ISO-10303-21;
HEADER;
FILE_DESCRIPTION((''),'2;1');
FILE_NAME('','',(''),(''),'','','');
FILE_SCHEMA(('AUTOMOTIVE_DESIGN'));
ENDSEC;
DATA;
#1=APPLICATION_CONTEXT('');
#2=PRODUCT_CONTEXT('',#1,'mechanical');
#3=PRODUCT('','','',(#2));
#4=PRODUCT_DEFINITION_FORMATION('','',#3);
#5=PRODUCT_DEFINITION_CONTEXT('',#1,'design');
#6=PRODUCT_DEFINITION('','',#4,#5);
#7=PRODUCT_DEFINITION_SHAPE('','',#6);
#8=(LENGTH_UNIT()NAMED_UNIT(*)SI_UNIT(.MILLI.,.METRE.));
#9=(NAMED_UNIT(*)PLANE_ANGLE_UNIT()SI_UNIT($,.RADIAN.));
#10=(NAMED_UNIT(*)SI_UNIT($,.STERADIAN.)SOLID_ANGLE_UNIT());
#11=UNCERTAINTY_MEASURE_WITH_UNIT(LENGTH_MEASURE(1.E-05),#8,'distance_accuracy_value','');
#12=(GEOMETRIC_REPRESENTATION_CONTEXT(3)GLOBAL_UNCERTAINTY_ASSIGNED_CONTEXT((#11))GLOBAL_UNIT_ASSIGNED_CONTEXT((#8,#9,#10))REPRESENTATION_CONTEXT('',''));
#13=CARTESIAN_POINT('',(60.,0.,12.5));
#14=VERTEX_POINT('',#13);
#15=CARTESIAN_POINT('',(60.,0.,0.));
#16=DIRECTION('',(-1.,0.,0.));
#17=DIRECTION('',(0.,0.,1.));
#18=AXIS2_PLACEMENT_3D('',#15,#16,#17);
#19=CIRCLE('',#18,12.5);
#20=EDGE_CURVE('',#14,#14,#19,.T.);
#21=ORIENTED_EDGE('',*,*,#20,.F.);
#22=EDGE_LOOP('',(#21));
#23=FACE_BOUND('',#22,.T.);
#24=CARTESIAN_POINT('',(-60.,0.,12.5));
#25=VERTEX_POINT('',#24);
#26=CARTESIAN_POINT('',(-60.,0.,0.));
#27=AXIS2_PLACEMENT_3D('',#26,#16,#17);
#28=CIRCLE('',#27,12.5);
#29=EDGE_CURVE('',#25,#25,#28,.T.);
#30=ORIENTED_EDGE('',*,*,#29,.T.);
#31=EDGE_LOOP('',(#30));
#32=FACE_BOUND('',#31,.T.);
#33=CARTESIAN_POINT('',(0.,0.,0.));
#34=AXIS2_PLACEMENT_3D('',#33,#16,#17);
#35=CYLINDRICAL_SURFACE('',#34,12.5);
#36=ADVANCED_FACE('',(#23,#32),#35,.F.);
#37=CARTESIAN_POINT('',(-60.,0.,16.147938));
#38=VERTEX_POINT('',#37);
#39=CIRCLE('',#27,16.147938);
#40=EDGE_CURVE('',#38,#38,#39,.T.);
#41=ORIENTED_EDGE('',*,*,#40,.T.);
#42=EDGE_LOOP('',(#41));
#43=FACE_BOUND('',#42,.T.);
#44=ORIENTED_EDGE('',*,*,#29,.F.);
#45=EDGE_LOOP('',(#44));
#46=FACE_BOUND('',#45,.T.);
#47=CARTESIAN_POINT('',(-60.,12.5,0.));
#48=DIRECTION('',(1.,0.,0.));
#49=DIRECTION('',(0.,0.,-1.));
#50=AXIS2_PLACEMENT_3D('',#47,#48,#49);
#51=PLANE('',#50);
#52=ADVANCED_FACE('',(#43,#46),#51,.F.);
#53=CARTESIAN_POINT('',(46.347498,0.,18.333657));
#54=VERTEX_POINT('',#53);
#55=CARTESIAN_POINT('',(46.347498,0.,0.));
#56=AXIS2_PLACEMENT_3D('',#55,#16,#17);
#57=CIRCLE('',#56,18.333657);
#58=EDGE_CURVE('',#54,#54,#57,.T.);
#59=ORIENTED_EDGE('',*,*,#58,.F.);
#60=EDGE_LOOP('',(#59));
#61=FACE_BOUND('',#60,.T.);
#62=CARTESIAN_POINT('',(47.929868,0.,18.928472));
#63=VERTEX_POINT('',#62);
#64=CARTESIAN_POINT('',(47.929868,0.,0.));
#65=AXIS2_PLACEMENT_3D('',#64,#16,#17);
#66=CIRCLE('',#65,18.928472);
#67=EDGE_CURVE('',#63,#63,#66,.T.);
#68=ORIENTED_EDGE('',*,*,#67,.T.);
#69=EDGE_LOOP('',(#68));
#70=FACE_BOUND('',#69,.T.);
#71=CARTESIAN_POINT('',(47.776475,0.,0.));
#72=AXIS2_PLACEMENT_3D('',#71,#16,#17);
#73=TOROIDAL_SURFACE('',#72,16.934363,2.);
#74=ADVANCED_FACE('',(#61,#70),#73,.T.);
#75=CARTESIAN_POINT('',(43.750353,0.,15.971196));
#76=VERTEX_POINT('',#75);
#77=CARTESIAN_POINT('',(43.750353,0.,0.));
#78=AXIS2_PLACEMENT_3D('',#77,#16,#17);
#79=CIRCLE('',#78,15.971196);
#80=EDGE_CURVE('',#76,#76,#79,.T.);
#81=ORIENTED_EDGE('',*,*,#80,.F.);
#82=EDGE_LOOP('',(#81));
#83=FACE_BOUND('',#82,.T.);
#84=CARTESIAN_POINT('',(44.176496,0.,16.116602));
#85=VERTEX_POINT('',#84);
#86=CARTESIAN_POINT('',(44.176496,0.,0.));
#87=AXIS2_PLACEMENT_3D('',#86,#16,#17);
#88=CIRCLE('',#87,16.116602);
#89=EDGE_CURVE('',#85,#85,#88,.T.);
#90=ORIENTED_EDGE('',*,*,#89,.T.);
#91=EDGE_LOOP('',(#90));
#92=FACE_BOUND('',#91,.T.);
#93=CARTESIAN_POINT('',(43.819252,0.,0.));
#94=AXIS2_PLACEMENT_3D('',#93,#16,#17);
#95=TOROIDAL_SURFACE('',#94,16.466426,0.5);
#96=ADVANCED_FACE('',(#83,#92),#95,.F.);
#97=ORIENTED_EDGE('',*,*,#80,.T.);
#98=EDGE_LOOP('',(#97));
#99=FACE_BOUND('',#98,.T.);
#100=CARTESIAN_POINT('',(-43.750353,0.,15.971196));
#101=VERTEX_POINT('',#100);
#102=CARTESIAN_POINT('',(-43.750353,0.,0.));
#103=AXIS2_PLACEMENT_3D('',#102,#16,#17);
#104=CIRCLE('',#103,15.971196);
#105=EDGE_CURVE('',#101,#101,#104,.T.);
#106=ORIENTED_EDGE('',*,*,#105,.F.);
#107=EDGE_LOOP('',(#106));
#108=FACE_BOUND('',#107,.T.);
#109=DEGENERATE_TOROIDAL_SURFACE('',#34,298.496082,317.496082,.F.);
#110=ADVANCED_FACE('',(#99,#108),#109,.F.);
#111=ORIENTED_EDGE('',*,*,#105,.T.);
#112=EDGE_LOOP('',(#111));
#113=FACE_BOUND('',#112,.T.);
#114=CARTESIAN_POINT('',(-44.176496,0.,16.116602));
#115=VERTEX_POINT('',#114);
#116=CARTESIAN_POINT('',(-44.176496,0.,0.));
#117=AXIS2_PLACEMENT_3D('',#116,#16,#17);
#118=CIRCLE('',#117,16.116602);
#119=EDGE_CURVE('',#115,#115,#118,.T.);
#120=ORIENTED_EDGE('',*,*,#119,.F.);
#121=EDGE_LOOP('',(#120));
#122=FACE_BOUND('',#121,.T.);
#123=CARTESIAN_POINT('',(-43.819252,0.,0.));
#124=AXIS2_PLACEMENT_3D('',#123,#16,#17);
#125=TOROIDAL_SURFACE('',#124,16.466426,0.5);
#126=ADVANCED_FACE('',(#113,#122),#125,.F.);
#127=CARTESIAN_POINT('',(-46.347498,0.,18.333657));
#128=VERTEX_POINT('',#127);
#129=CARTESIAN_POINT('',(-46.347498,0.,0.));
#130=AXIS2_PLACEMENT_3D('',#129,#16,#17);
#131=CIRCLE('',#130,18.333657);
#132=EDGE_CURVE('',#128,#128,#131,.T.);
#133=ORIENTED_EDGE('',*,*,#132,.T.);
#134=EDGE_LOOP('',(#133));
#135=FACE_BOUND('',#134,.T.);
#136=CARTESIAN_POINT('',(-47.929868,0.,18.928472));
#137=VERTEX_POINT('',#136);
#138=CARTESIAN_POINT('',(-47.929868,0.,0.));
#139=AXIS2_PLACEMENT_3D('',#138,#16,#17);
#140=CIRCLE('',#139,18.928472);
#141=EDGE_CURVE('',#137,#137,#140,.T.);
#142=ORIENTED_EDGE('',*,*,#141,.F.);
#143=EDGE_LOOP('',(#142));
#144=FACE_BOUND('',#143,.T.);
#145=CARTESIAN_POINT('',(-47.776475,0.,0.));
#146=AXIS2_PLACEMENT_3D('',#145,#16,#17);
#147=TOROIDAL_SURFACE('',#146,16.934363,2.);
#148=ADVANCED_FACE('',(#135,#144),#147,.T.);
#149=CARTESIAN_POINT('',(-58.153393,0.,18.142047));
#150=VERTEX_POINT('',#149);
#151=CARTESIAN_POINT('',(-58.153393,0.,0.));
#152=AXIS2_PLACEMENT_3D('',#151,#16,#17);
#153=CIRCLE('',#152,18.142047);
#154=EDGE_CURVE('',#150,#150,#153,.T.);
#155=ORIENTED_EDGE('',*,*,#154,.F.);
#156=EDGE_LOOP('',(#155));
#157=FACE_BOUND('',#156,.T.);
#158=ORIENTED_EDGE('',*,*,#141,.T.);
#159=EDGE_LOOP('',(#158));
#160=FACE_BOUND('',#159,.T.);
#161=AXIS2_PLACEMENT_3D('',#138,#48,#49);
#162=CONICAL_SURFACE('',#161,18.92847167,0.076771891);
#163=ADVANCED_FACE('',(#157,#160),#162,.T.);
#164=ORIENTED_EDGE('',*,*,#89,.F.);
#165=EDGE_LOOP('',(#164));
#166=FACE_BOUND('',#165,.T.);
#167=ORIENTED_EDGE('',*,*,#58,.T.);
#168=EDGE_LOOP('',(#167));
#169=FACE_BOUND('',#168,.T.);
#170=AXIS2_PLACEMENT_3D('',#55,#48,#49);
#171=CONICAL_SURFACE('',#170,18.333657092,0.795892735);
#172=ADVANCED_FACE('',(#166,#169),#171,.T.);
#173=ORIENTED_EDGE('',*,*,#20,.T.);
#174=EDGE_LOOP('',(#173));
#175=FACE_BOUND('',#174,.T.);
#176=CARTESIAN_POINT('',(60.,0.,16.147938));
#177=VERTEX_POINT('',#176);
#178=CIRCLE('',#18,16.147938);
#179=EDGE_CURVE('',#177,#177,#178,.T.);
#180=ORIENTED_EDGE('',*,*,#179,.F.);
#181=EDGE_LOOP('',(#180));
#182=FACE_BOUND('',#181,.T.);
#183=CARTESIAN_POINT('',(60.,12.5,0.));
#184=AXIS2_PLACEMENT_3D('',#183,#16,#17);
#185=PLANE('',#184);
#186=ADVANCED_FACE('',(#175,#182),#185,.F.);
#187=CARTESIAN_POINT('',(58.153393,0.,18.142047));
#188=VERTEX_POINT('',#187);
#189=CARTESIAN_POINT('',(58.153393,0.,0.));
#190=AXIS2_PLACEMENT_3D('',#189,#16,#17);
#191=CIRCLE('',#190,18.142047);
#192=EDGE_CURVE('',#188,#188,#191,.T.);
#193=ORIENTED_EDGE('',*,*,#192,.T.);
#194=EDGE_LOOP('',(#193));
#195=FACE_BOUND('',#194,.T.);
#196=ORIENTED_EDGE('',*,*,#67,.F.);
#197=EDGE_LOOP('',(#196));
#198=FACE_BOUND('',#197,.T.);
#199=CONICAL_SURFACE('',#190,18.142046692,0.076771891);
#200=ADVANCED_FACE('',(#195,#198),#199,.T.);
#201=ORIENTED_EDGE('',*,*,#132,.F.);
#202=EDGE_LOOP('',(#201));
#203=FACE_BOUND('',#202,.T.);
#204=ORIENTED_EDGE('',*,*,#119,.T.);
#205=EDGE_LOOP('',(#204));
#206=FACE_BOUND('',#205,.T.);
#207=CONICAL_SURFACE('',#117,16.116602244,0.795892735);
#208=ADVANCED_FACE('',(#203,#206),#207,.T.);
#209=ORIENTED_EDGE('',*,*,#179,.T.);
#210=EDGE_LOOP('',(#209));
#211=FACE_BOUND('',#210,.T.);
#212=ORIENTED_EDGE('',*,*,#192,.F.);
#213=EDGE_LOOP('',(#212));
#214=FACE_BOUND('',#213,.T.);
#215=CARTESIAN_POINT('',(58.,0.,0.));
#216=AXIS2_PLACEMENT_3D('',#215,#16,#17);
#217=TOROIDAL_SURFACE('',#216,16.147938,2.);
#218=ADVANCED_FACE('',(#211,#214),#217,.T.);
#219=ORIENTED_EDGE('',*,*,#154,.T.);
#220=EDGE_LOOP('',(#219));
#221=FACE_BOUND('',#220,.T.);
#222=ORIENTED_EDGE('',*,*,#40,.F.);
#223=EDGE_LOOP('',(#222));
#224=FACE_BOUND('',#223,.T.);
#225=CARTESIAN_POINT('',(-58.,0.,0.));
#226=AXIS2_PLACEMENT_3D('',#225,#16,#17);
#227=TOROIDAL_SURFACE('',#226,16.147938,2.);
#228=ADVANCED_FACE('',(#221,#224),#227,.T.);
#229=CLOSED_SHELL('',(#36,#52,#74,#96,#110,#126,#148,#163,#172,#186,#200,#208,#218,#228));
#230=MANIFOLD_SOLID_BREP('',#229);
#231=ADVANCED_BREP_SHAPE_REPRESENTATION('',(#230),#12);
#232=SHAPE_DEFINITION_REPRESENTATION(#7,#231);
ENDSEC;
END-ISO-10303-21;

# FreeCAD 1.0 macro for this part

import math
import FreeCAD as App
import Part
import Sketcher
from FreeCAD import Vector

doc = App.newDocument("Part")
body = doc.addObject("PartDesign::Body", "Body")

sketch1 = body.newObject("Sketcher::SketchObject", "Sketch")
sketch1.AttachmentSupport = (doc.getObject("XY_Plane"), [""])
sketch1.MapMode = "FlatFace"
sketch1.addGeometry([
    Part.LineSegment(Vector(-60, 12.5, 0), Vector(60, 12.5, 0)),
    Part.LineSegment(Vector(60, 12.5, 0), Vector(60, 16.15, 0)),
    Part.ArcOfCircle(Part.Circle(Vector(58, 16.15, 0), Vector(0, 0, 1), 2), math.radians(0), math.radians(86)),
    Part.LineSegment(Vector(58.15, 18.14, 0), Vector(47.93, 18.93, 0)),
    Part.ArcOfCircle(Part.Circle(Vector(47.78, 16.93, 0), Vector(0, 0, 1), 2), math.radians(86), math.radians(136)),
    Part.LineSegment(Vector(46.35, 18.33, 0), Vector(44.18, 16.12, 0)),
    Part.ArcOfCircle(Part.Circle(Vector(43.82, 16.47, 0), Vector(0, 0, 1), 0.5), math.radians(-98), math.radians(-44)),
    Part.ArcOfCircle(Part.Circle(Vector(0, -298.5, 0), Vector(0, 0, 1), 317.5), math.radians(82.08), math.radians(97.92)),
    Part.ArcOfCircle(Part.Circle(Vector(-43.82, 16.47, 0), Vector(0, 0, 1), 0.5), math.radians(-136), math.radians(-82)),
    Part.LineSegment(Vector(-44.18, 16.12, 0), Vector(-46.35, 18.33, 0)),
    Part.ArcOfCircle(Part.Circle(Vector(-47.78, 16.93, 0), Vector(0, 0, 1), 2), math.radians(44), math.radians(94)),
    Part.LineSegment(Vector(-47.93, 18.93, 0), Vector(-58.15, 18.14, 0)),
    Part.ArcOfCircle(Part.Circle(Vector(-58, 16.15, 0), Vector(0, 0, 1), 2), math.radians(94), math.radians(180)),
    Part.LineSegment(Vector(-60, 16.15, 0), Vector(-60, 12.5, 0)),
], False)
sketch1.addConstraint([
    Sketcher.Constraint("Coincident", 0, 2, 1, 1),
    Sketcher.Constraint("Tangent", 1, 2, 2, 1),
    Sketcher.Constraint("Tangent", 2, 2, 3, 1),
    Sketcher.Constraint("Tangent", 3, 2, 4, 1),
    Sketcher.Constraint("Tangent", 4, 2, 5, 1),
    Sketcher.Constraint("Tangent", 5, 2, 6, 2),
    Sketcher.Constraint("Tangent", 6, 1, 7, 1),
    Sketcher.Constraint("Tangent", 7, 2, 8, 2),
    Sketcher.Constraint("Tangent", 8, 1, 9, 1),
    Sketcher.Constraint("Tangent", 9, 2, 10, 1),
    Sketcher.Constraint("Tangent", 10, 2, 11, 1),
    Sketcher.Constraint("Tangent", 11, 2, 12, 1),
    Sketcher.Constraint("Tangent", 12, 2, 13, 1),
    Sketcher.Constraint("Coincident", 13, 2, 0, 1),
    Sketcher.Constraint("Horizontal", 0),
    Sketcher.Constraint("Vertical", 1),
    Sketcher.Constraint("Vertical", 13),
    Sketcher.Constraint("Equal", 2, 4),
    Sketcher.Constraint("Equal", 6, 8),
    Sketcher.Constraint("Equal", 4, 10),
    Sketcher.Constraint("Equal", 10, 12),
    Sketcher.Constraint("Symmetric", 6, 3, 8, 3, -2),
    Sketcher.Constraint("Symmetric", 4, 3, 10, 3, -2),
    Sketcher.Constraint("Symmetric", 2, 3, 12, 3, -2),
    Sketcher.Constraint("Radius", 2, 2.0),
    Sketcher.Constraint("Radius", 6, 0.5),
    Sketcher.Constraint("DistanceX", 0, 1, 0, 2, 120.0),
    Sketcher.Constraint("DistanceY", -1, 1, 0, 2, 12.5),
    Sketcher.Constraint("Radius", 7, 317.496082),
    Sketcher.Constraint("DistanceX", -1, 1, 4, 2, 46.347498),
    Sketcher.Constraint("DistanceY", 1, 1, 1, 2, 3.647938),
    Sketcher.Constraint("DistanceX", -1, 1, 6, 3, 43.819252),
    Sketcher.Constraint("DistanceY", 7, 3, -1, 1, 298.496082),
    Sketcher.Constraint("DistanceX", -1, 1, 3, 2, 47.929868),
])
revolution = body.newObject("PartDesign::Revolution", "Revolution")
revolution.Profile = sketch1
revolution.ReferenceAxis = (sketch1, ["H_Axis"])
revolution.Angle = 360

doc.recompute()
